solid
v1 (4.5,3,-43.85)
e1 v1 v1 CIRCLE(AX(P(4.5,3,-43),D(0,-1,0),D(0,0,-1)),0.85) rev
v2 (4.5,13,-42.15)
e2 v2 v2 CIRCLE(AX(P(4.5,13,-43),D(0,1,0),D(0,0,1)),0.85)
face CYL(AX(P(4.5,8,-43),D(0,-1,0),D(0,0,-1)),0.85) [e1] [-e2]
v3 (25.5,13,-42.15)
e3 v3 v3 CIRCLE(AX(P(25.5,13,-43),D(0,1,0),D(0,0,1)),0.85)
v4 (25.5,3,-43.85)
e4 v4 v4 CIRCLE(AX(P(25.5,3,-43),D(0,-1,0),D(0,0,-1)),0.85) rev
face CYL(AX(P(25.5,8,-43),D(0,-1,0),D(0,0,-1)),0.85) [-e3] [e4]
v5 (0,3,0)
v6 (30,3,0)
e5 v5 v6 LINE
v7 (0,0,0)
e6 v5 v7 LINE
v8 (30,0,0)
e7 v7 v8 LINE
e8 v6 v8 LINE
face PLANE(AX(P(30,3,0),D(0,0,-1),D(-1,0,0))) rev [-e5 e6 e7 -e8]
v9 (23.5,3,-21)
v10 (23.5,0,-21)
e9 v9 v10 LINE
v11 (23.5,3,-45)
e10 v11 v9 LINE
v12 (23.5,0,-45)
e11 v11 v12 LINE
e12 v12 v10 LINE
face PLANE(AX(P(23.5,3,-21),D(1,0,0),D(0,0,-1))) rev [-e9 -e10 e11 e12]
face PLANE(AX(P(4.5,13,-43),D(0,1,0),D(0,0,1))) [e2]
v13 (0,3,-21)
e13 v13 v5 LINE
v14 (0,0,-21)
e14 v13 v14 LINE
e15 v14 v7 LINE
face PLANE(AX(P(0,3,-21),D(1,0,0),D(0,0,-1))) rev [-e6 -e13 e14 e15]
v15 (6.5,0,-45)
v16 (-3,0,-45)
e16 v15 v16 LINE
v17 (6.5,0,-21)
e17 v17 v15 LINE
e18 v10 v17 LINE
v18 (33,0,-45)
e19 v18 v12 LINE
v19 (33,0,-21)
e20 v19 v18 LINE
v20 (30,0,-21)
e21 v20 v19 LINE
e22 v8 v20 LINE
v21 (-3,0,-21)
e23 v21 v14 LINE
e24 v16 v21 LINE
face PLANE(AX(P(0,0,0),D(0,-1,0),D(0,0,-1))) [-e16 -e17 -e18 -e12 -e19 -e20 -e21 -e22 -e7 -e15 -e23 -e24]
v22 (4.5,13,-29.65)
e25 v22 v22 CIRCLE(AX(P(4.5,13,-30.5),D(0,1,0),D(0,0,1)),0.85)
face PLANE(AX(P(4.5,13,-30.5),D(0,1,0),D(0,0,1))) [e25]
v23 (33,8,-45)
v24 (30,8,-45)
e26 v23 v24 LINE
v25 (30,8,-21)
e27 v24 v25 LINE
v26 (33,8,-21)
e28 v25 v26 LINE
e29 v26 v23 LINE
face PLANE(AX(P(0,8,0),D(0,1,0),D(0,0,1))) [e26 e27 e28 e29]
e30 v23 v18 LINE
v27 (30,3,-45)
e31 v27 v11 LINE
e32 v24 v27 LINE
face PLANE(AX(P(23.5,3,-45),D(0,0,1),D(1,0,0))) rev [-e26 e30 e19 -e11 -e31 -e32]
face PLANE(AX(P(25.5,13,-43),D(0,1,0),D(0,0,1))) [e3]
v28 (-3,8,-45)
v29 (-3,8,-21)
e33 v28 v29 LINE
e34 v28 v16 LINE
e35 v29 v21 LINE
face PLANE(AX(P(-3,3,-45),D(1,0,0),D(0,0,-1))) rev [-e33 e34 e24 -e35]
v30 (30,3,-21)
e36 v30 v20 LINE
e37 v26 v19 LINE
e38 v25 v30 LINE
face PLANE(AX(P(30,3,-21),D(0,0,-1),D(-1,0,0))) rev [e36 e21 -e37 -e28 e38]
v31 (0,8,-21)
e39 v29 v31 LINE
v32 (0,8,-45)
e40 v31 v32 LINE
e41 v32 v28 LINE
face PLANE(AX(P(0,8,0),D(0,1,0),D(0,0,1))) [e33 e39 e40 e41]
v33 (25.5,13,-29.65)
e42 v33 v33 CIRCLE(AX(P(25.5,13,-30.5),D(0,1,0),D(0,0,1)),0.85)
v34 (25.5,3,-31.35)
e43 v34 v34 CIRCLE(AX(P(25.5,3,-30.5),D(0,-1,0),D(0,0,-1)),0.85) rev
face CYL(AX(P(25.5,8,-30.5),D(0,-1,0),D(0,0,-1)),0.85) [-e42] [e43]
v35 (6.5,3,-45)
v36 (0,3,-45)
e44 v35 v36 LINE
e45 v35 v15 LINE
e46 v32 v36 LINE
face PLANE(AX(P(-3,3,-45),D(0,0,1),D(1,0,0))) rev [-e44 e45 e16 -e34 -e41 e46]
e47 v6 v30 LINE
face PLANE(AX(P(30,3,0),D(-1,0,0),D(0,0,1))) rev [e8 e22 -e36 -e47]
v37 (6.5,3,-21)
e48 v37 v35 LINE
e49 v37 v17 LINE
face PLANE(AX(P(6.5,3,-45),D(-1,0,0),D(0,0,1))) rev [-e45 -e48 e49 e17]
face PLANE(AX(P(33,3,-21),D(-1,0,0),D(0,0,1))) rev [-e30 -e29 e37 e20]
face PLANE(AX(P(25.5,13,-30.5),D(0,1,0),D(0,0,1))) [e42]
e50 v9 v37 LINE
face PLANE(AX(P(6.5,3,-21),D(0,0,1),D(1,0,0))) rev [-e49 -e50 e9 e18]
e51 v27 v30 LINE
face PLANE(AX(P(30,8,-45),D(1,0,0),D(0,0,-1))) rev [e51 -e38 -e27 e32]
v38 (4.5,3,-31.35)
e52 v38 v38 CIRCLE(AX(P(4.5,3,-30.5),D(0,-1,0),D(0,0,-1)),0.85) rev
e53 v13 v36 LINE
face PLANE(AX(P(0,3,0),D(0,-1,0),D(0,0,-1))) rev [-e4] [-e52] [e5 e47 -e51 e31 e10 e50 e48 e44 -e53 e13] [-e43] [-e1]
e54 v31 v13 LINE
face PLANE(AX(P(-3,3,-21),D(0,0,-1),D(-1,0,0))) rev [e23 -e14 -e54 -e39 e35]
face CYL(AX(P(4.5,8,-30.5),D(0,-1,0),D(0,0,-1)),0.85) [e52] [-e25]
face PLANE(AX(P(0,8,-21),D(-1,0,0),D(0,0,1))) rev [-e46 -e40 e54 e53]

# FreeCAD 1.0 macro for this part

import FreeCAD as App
import Part
import Sketcher
from FreeCAD import Vector

doc = App.newDocument("Part")
body = doc.addObject("PartDesign::Body", "Body")

sketch1 = body.newObject("Sketcher::SketchObject", "Sketch")
sketch1.AttachmentSupport = (doc.getObject("XZ_Plane"), [""])
sketch1.MapMode = "FlatFace"
sketch1.addGeometry([
    Part.LineSegment(Vector(0, 0, 0), Vector(30, 0, 0)),
    Part.LineSegment(Vector(30, 0, 0), Vector(30, -21, 0)),
    Part.LineSegment(Vector(30, -21, 0), Vector(33, -21, 0)),
    Part.LineSegment(Vector(33, -21, 0), Vector(33, -45, 0)),
    Part.LineSegment(Vector(33, -45, 0), Vector(23.5, -45, 0)),
    Part.LineSegment(Vector(23.5, -45, 0), Vector(23.5, -21, 0)),
    Part.LineSegment(Vector(23.5, -21, 0), Vector(6.5, -21, 0)),
    Part.LineSegment(Vector(6.5, -21, 0), Vector(6.5, -45, 0)),
    Part.LineSegment(Vector(6.5, -45, 0), Vector(-3, -45, 0)),
    Part.LineSegment(Vector(-3, -45, 0), Vector(-3, -21, 0)),
    Part.LineSegment(Vector(-3, -21, 0), Vector(0, -21, 0)),
    Part.LineSegment(Vector(0, -21, 0), Vector(0, 0, 0)),
], False)
sketch1.addConstraint([
    Sketcher.Constraint("Coincident", 0, 2, 1, 1),
    Sketcher.Constraint("Coincident", 1, 2, 2, 1),
    Sketcher.Constraint("Coincident", 2, 2, 3, 1),
    Sketcher.Constraint("Coincident", 3, 2, 4, 1),
    Sketcher.Constraint("Coincident", 4, 2, 5, 1),
    Sketcher.Constraint("Coincident", 5, 2, 6, 1),
    Sketcher.Constraint("Coincident", 6, 2, 7, 1),
    Sketcher.Constraint("Coincident", 7, 2, 8, 1),
    Sketcher.Constraint("Coincident", 8, 2, 9, 1),
    Sketcher.Constraint("Coincident", 9, 2, 10, 1),
    Sketcher.Constraint("Coincident", 10, 2, 11, 1),
    Sketcher.Constraint("Coincident", 11, 2, 0, 1),
    Sketcher.Constraint("Horizontal", 0),
    Sketcher.Constraint("Vertical", 1),
    Sketcher.Constraint("Horizontal", 2),
    Sketcher.Constraint("Vertical", 3),
    Sketcher.Constraint("Horizontal", 4),
    Sketcher.Constraint("Vertical", 5),
    Sketcher.Constraint("Horizontal", 6),
    Sketcher.Constraint("Vertical", 7),
    Sketcher.Constraint("Horizontal", 8),
    Sketcher.Constraint("Vertical", 9),
    Sketcher.Constraint("Horizontal", 10),
    Sketcher.Constraint("Vertical", 11),
    Sketcher.Constraint("Coincident", 11, 2, -1, 1),
    Sketcher.Constraint("Horizontal", 2, 2, 5, 2),
    Sketcher.Constraint("Horizontal", 4, 2, 7, 2),
    Sketcher.Constraint("Horizontal", 6, 2, 9, 2),
    Sketcher.Constraint("Equal", 4, 8),
    Sketcher.Constraint("Equal", 2, 10),
    Sketcher.Constraint("DistanceX", 0, 1, 0, 2, 30.0),
    Sketcher.Constraint("DistanceX", 2, 1, 2, 2, 3.0),
    Sketcher.Constraint("DistanceX", 6, 2, 6, 1, 17.0),
    Sketcher.Constraint("DistanceY", 1, 2, 1, 1, 21.0),
    Sketcher.Constraint("DistanceY", 3, 2, 3, 1, 24.0),
])
pad1 = body.newObject("PartDesign::Pad", "Pad")
pad1.Profile = sketch1
pad1.Length = 3
pad1.Reversed = True

sketch2 = body.newObject("Sketcher::SketchObject", "Sketch001")
sketch2.AttachmentSupport = (doc.getObject("XZ_Plane"), [""])
sketch2.MapMode = "FlatFace"
sketch2.AttachmentOffset = App.Placement(Vector(0, 0, -3), App.Rotation())
sketch2.addGeometry([
    Part.Circle(Vector(4.5, -43, 0), Vector(0, 0, 1), 0.85),
    Part.Circle(Vector(25.5, -43, 0), Vector(0, 0, 1), 0.85),
    Part.Circle(Vector(25.5, -30.5, 0), Vector(0, 0, 1), 0.85),
    Part.Circle(Vector(4.5, -30.5, 0), Vector(0, 0, 1), 0.85),
    Part.LineSegment(Vector(-3, -45, 0), Vector(-3, -21, 0)),
    Part.LineSegment(Vector(-3, -21, 0), Vector(0, -21, 0)),
    Part.LineSegment(Vector(0, -21, 0), Vector(0, -45, 0)),
    Part.LineSegment(Vector(0, -45, 0), Vector(-3, -45, 0)),
    Part.LineSegment(Vector(30, -45, 0), Vector(30, -21, 0)),
    Part.LineSegment(Vector(30, -21, 0), Vector(33, -21, 0)),
    Part.LineSegment(Vector(33, -21, 0), Vector(33, -45, 0)),
    Part.LineSegment(Vector(33, -45, 0), Vector(30, -45, 0)),
], False)
sketch2.addConstraint([
    Sketcher.Constraint("Coincident", 4, 2, 5, 1),
    Sketcher.Constraint("Coincident", 5, 2, 6, 1),
    Sketcher.Constraint("Coincident", 6, 2, 7, 1),
    Sketcher.Constraint("Coincident", 7, 2, 4, 1),
    Sketcher.Constraint("Coincident", 8, 2, 9, 1),
    Sketcher.Constraint("Coincident", 9, 2, 10, 1),
    Sketcher.Constraint("Coincident", 10, 2, 11, 1),
    Sketcher.Constraint("Coincident", 11, 2, 8, 1),
    Sketcher.Constraint("Vertical", 4),
    Sketcher.Constraint("Horizontal", 5),
    Sketcher.Constraint("Vertical", 6),
    Sketcher.Constraint("Horizontal", 7),
    Sketcher.Constraint("Vertical", 8),
    Sketcher.Constraint("Horizontal", 9),
    Sketcher.Constraint("Vertical", 10),
    Sketcher.Constraint("Horizontal", 11),
    Sketcher.Constraint("Equal", 0, 1),
    Sketcher.Constraint("Equal", 1, 2),
    Sketcher.Constraint("Equal", 2, 3),
    Sketcher.Constraint("PointOnObject", 5, 2, -2),
    Sketcher.Constraint("Horizontal", 0, 3, 1, 3),
    Sketcher.Constraint("Horizontal", 2, 3, 3, 3),
    Sketcher.Constraint("Horizontal", 5, 2, 8, 2),
    Sketcher.Constraint("Horizontal", 7, 2, 10, 2),
    Sketcher.Constraint("Vertical", 1, 3, 2, 3),
    Sketcher.Constraint("Vertical", 0, 3, 3, 3),
    Sketcher.Constraint("Equal", 7, 9),
    Sketcher.Constraint("Diameter", 0, 1.7),
    Sketcher.Constraint("DistanceX", 5, 1, 5, 2, 3.0),
    Sketcher.Constraint("DistanceY", 4, 1, 4, 2, 24.0),
    Sketcher.Constraint("DistanceY", 0, 3, -1, 1, 43.0),
    Sketcher.Constraint("DistanceY", 4, 2, -1, 1, 21.0),
    Sketcher.Constraint("DistanceX", -1, 1, 8, 2, 30.0),
    Sketcher.Constraint("DistanceX", 0, 3, 1, 3, 21.0),
    Sketcher.Constraint("DistanceX", -1, 1, 0, 3, 4.5),
    Sketcher.Constraint("DistanceY", 2, 3, -1, 1, 30.5),
])
pad2 = body.newObject("PartDesign::Pad", "Pad001")
pad2.Profile = sketch2
pad2.Length = 5
pad2.Reversed = True

sketch3 = body.newObject("Sketcher::SketchObject", "Sketch002")
sketch3.AttachmentSupport = (doc.getObject("XZ_Plane"), [""])
sketch3.MapMode = "FlatFace"
sketch3.AttachmentOffset = App.Placement(Vector(0, 0, -8), App.Rotation())
sketch3.addGeometry([
    Part.Circle(Vector(4.5, -43, 0), Vector(0, 0, 1), 0.85),
    Part.Circle(Vector(25.5, -43, 0), Vector(0, 0, 1), 0.85),
    Part.Circle(Vector(25.5, -30.5, 0), Vector(0, 0, 1), 0.85),
    Part.Circle(Vector(4.5, -30.5, 0), Vector(0, 0, 1), 0.85),
], False)
sketch3.addConstraint([
    Sketcher.Constraint("Equal", 0, 1),
    Sketcher.Constraint("Equal", 1, 2),
    Sketcher.Constraint("Equal", 2, 3),
    Sketcher.Constraint("Horizontal", 0, 3, 1, 3),
    Sketcher.Constraint("Horizontal", 2, 3, 3, 3),
    Sketcher.Constraint("Vertical", 1, 3, 2, 3),
    Sketcher.Constraint("Vertical", 0, 3, 3, 3),
    Sketcher.Constraint("Diameter", 0, 1.7),
    Sketcher.Constraint("DistanceY", 0, 3, -1, 1, 43.0),
    Sketcher.Constraint("DistanceX", 0, 3, 1, 3, 21.0),
    Sketcher.Constraint("DistanceX", -1, 1, 0, 3, 4.5),
    Sketcher.Constraint("DistanceY", 2, 3, -1, 1, 30.5),
])
pad3 = body.newObject("PartDesign::Pad", "Pad002")
pad3.Profile = sketch3
pad3.Length = 5
pad3.Reversed = True

doc.recompute()
